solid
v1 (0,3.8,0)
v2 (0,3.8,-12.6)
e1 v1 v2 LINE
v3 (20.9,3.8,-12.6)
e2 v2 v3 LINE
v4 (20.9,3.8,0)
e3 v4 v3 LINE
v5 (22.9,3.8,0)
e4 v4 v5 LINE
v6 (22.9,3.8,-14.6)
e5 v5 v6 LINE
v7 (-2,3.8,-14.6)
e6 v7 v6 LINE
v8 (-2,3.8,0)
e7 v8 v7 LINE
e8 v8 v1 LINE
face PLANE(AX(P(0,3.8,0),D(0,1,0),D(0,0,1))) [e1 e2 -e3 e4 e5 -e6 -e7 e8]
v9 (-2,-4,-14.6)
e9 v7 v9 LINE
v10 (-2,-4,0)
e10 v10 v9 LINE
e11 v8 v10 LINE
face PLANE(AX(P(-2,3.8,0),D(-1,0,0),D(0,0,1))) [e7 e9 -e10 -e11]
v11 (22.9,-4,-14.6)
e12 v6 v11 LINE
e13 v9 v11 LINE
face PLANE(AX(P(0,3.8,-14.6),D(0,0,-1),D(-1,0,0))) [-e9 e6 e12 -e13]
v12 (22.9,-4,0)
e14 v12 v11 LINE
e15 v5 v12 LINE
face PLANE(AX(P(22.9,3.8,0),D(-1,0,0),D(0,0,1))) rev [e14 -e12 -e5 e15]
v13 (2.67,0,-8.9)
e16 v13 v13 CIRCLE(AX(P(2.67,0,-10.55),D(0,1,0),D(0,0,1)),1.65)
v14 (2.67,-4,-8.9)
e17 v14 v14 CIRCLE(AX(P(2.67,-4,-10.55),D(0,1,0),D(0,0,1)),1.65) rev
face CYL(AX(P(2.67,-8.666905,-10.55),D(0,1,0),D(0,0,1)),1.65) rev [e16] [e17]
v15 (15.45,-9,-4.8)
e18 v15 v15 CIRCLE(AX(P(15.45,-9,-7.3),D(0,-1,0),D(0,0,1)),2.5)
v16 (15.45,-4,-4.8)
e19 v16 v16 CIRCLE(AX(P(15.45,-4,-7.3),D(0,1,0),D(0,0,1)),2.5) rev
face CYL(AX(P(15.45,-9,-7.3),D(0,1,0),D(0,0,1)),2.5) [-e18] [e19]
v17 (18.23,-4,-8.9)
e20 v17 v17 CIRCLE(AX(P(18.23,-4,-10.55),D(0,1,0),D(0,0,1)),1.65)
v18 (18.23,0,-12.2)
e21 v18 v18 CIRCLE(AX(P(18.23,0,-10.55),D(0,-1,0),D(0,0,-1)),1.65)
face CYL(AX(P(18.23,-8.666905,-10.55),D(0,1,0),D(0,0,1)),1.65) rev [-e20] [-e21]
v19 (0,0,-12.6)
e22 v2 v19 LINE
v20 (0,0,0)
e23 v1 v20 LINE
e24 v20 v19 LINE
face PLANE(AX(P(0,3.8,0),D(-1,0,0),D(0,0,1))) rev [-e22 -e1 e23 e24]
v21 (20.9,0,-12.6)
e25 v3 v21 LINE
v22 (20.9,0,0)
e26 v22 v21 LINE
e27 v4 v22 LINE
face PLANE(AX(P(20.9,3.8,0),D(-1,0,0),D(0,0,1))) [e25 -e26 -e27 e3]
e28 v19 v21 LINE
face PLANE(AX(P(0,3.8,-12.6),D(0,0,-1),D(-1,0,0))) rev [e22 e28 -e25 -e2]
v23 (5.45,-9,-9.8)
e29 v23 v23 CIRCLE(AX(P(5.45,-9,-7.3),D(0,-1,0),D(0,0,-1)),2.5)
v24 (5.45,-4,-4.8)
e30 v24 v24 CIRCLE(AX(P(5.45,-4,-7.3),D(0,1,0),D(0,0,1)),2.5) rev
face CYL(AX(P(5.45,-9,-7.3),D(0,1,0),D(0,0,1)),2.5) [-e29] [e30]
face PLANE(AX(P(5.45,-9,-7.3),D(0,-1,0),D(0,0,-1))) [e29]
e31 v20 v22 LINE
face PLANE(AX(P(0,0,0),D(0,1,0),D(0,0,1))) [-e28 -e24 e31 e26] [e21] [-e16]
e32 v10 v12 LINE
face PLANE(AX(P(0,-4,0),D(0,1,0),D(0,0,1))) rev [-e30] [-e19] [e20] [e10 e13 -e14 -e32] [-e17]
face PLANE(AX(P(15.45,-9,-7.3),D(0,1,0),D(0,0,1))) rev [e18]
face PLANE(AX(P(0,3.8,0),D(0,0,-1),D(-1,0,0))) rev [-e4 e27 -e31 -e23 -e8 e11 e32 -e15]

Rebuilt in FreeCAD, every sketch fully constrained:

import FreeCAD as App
import Part
import Sketcher
from FreeCAD import Vector

doc = App.newDocument("Part")
body = doc.addObject("PartDesign::Body", "Body")

# Sketch on XZ plane
sketch1 = body.newObject("Sketcher::SketchObject", "Sketch")
sketch1.AttachmentSupport = (doc.getObject("XZ_Plane"), [""])
sketch1.MapMode = "FlatFace"
sketch1.addGeometry(Part.LineSegment(Vector(22.9, -14.6, 0), Vector(-2, -14.6, 0)), False)
sketch1.addGeometry(Part.LineSegment(Vector(-2, -14.6, 0), Vector(-2, 0, 0)), False)
sketch1.addGeometry(Part.LineSegment(Vector(-2, 0, 0), Vector(0, 0, 0)), False)
sketch1.addGeometry(Part.LineSegment(Vector(0, 0, 0), Vector(0, -12.6, 0)), False)
sketch1.addGeometry(Part.LineSegment(Vector(0, -12.6, 0), Vector(20.9, -12.6, 0)), False)
sketch1.addGeometry(Part.LineSegment(Vector(20.9, -12.6, 0), Vector(20.9, 0, 0)), False)
sketch1.addGeometry(Part.LineSegment(Vector(20.9, 0, 0), Vector(22.9, 0, 0)), False)
sketch1.addGeometry(Part.LineSegment(Vector(22.9, 0, 0), Vector(22.9, -14.6, 0)), False)
sketch1.addConstraint(Sketcher.Constraint("Coincident", 0, 2, 1, 1))
sketch1.addConstraint(Sketcher.Constraint("Coincident", 1, 2, 2, 1))
sketch1.addConstraint(Sketcher.Constraint("Coincident", 2, 2, 3, 1))
sketch1.addConstraint(Sketcher.Constraint("Coincident", 3, 2, 4, 1))
sketch1.addConstraint(Sketcher.Constraint("Coincident", 4, 2, 5, 1))
sketch1.addConstraint(Sketcher.Constraint("Coincident", 5, 2, 6, 1))
sketch1.addConstraint(Sketcher.Constraint("Coincident", 6, 2, 7, 1))
sketch1.addConstraint(Sketcher.Constraint("Coincident", 7, 2, 0, 1))
sketch1.addConstraint(Sketcher.Constraint("Horizontal", 0))
sketch1.addConstraint(Sketcher.Constraint("Vertical", 1))
sketch1.addConstraint(Sketcher.Constraint("Horizontal", 2))
sketch1.addConstraint(Sketcher.Constraint("Vertical", 3))
sketch1.addConstraint(Sketcher.Constraint("Horizontal", 4))
sketch1.addConstraint(Sketcher.Constraint("Vertical", 5))
sketch1.addConstraint(Sketcher.Constraint("Horizontal", 6))
sketch1.addConstraint(Sketcher.Constraint("Vertical", 7))
sketch1.addConstraint(Sketcher.Constraint("Coincident", 2, 2, -1, 1))
sketch1.addConstraint(Sketcher.Constraint("PointOnObject", 5, 2, -1))
sketch1.addConstraint(Sketcher.Constraint("Equal", 2, 6))
sketch1.addConstraint(Sketcher.Constraint("DistanceX", 2, 1, 2, 2, 2.0))
sketch1.addConstraint(Sketcher.Constraint("DistanceX", 0, 2, 0, 1, 24.9))
sketch1.addConstraint(Sketcher.Constraint("DistanceY", 1, 1, 1, 2, 14.6))
sketch1.addConstraint(Sketcher.Constraint("DistanceY", 3, 2, 3, 1, 12.6))
pad1 = body.newObject("PartDesign::Pad", "Pad")
pad1.Profile = sketch1
pad1.Length = 3.8
pad1.Reversed = True

# Sketch on XZ plane
sketch2 = body.newObject("Sketcher::SketchObject", "Sketch001")
sketch2.AttachmentSupport = (doc.getObject("XZ_Plane"), [""])
sketch2.MapMode = "FlatFace"
sketch2.addGeometry(Part.LineSegment(Vector(22.9, 0, 0), Vector(22.9, -14.6, 0)), False)
sketch2.addGeometry(Part.LineSegment(Vector(22.9, -14.6, 0), Vector(-2, -14.6, 0)), False)
sketch2.addGeometry(Part.LineSegment(Vector(-2, -14.6, 0), Vector(-2, 0, 0)), False)
sketch2.addGeometry(Part.LineSegment(Vector(-2, 0, 0), Vector(22.9, 0, 0)), False)
sketch2.addConstraint(Sketcher.Constraint("Coincident", 0, 2, 1, 1))
sketch2.addConstraint(Sketcher.Constraint("Coincident", 1, 2, 2, 1))
sketch2.addConstraint(Sketcher.Constraint("Coincident", 2, 2, 3, 1))
sketch2.addConstraint(Sketcher.Constraint("Coincident", 3, 2, 0, 1))
sketch2.addConstraint(Sketcher.Constraint("Vertical", 0))
sketch2.addConstraint(Sketcher.Constraint("Horizontal", 1))
sketch2.addConstraint(Sketcher.Constraint("Vertical", 2))
sketch2.addConstraint(Sketcher.Constraint("Horizontal", 3))
sketch2.addConstraint(Sketcher.Constraint("PointOnObject", 2, 2, -1))
sketch2.addConstraint(Sketcher.Constraint("DistanceX", 1, 2, 1, 1, 24.9))
sketch2.addConstraint(Sketcher.Constraint("DistanceY", 0, 2, 0, 1, 14.6))
sketch2.addConstraint(Sketcher.Constraint("DistanceX", 1, 2, -1, 1, 2.0))
pad2 = body.newObject("PartDesign::Pad", "Pad001")
pad2.Profile = sketch2
pad2.Length = 4

# Sketch on XZ plane
sketch3 = body.newObject("Sketcher::SketchObject", "Sketch002")
sketch3.AttachmentSupport = (doc.getObject("XZ_Plane"), [""])
sketch3.MapMode = "FlatFace"
sketch3.AttachmentOffset = App.Placement(Vector(0, 0, 4), App.Rotation())
sketch3.addGeometry(Part.Circle(Vector(5.45, -7.3, 0), Vector(0, 0, 1), 2.5), False)
sketch3.addGeometry(Part.Circle(Vector(15.45, -7.3, 0), Vector(0, 0, 1), 2.5), False)
sketch3.addConstraint(Sketcher.Constraint("Equal", 0, 1))
sketch3.addConstraint(Sketcher.Constraint("Horizontal", 0, 3, 1, 3))
sketch3.addConstraint(Sketcher.Constraint("Diameter", 0, 5.0))
sketch3.addConstraint(Sketcher.Constraint("DistanceX", 0, 3, 1, 3, 10.0))
sketch3.addConstraint(Sketcher.Constraint("DistanceY", 0, 3, -1, 1, 7.3))
sketch3.addConstraint(Sketcher.Constraint("DistanceX", -1, 1, 0, 3, 5.45))
pad3 = body.newObject("PartDesign::Pad", "Pad002")
pad3.Profile = sketch3
pad3.Length = 5

# Sketch on XZ plane
sketch4 = body.newObject("Sketcher::SketchObject", "Sketch003")
sketch4.AttachmentSupport = (doc.getObject("XZ_Plane"), [""])
sketch4.MapMode = "FlatFace"
sketch4.addGeometry(Part.Circle(Vector(2.67, -10.55, 0), Vector(0, 0, 1), 1.65), False)
sketch4.addGeometry(Part.Circle(Vector(18.23, -10.55, 0), Vector(0, 0, 1), 1.65), False)
sketch4.addConstraint(Sketcher.Constraint("Equal", 0, 1))
sketch4.addConstraint(Sketcher.Constraint("Horizontal", 0, 3, 1, 3))
sketch4.addConstraint(Sketcher.Constraint("Diameter", 0, 3.3))
sketch4.addConstraint(Sketcher.Constraint("DistanceX", -1, 1, 0, 3, 2.67))
sketch4.addConstraint(Sketcher.Constraint("DistanceY", 0, 3, -1, 1, 10.55))
sketch4.addConstraint(Sketcher.Constraint("DistanceX", -1, 1, 1, 3, 18.23))
pocket1 = body.newObject("PartDesign::Pocket", "Pocket")
pocket1.Profile = sketch4
pocket1.Length = 4
pocket1.Reversed = True

doc.recompute()
